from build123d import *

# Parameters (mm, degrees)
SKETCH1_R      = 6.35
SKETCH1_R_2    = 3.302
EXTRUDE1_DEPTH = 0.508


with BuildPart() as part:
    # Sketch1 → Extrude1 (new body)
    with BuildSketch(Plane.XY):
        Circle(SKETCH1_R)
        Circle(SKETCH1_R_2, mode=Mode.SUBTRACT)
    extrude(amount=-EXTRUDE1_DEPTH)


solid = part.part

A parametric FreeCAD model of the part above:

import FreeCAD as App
import Part
import Sketcher
Q = App.Units.Quantity

doc = App.newDocument("Part")
params = doc.addObject("Spreadsheet::Sheet", "Params")
for row, (alias, value) in enumerate([
    ("sketch1_diameter", "0.5 in"),
    ("sketch1_diameter2", "0.26 in"),
    ("pad1_length", "0.02 in"),
], start=1):
    params.set(f"A{row}", alias)
    params.set(f"B{row}", "=" + value)
    params.setAlias(f"B{row}", alias)

body = doc.addObject("PartDesign::Body", "Body")

# Sketch on XY plane
sketch1 = body.newObject("Sketcher::SketchObject", "Sketch")
sketch1.AttachmentSupport = (doc.getObject("XY_Plane"), [""])
sketch1.MapMode = "FlatFace"
sketch1.addGeometry(Part.Circle(App.Vector(0, 0, 0), App.Vector(0, 0, 1), 6.35), False)
sketch1.addGeometry(Part.Circle(App.Vector(0, 0, 0), App.Vector(0, 0, 1), 3.302), False)
sketch1.addConstraint(Sketcher.Constraint("Coincident", 0, 3, -1, 1))
sketch1.addConstraint(Sketcher.Constraint("Coincident", 1, 3, -1, 1))
sketch1.addConstraint(Sketcher.Constraint("Diameter", 0, Q("0.5 in")))
sketch1.addConstraint(Sketcher.Constraint("Diameter", 1, Q("0.26 in")))
sketch1.setExpression("Constraints[2]", "Params.sketch1_diameter")
sketch1.setExpression("Constraints[3]", "Params.sketch1_diameter2")
pad1 = body.newObject("PartDesign::Pad", "Pad")
pad1.Profile = sketch1
pad1.setExpression("Length", "Params.pad1_length")
pad1.Reversed = True

doc.recompute()
